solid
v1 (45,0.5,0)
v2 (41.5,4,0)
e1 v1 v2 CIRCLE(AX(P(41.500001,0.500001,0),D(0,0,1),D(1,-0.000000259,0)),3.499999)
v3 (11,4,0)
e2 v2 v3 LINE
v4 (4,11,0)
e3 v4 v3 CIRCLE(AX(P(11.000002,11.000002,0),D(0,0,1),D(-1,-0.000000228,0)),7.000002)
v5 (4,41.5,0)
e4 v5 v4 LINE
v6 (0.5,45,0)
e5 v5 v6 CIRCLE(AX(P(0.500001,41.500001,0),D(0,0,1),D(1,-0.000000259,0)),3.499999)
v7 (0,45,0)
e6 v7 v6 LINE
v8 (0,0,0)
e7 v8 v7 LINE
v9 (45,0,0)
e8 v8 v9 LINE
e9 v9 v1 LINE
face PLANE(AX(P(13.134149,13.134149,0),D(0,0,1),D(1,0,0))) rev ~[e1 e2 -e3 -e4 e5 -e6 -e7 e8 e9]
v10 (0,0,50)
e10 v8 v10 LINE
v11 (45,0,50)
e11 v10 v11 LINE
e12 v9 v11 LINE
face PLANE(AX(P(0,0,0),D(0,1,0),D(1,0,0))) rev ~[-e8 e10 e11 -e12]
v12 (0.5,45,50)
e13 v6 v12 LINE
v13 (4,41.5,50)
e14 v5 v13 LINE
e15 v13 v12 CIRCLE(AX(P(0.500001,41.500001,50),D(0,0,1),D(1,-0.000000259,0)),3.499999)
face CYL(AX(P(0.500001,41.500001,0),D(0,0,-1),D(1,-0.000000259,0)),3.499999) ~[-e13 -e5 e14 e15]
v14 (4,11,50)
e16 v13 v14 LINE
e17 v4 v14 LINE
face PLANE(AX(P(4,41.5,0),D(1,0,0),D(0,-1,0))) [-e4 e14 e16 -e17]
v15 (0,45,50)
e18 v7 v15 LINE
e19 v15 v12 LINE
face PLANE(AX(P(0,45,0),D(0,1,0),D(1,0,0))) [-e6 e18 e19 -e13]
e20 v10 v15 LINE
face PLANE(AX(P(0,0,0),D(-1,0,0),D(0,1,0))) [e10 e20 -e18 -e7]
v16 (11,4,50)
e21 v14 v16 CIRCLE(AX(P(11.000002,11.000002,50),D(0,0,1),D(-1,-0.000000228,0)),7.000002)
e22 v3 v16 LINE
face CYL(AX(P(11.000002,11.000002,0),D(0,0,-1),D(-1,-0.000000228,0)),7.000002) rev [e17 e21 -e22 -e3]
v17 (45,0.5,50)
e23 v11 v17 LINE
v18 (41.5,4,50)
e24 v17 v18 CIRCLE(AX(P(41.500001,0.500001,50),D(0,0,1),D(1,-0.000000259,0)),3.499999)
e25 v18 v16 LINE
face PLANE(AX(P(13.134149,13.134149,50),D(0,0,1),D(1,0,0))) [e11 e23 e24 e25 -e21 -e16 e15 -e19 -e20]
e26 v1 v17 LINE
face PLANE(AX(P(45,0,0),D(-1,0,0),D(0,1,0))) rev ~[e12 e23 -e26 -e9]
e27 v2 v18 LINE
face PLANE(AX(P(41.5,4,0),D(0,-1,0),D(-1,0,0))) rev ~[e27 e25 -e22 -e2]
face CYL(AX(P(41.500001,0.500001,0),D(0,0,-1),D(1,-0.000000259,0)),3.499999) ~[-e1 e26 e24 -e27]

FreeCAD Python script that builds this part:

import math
import FreeCAD as App
import Part
import Sketcher

doc = App.newDocument("Part")
body = doc.addObject("PartDesign::Body", "Body")

sketch1 = doc.addObject("Sketcher::SketchObject", "Sketch")
body.addObject(sketch1)
sketch1.AttachmentSupport = (doc.XY_Plane, [""])
sketch1.MapMode = "FlatFace"
sketch1.addGeometry([
    Part.LineSegment(App.Vector(0, 0, 0), App.Vector(45, 0, 0)),
    Part.LineSegment(App.Vector(45, 0, 0), App.Vector(45, 0.5, 0)),
    Part.ArcOfCircle(Part.Circle(App.Vector(41.500001, 0.500001, 0), App.Vector(0, 0, 1), 3.499999), math.radians(-0.000015), math.radians(90.000015)),
    Part.LineSegment(App.Vector(41.5, 4, 0), App.Vector(11, 4, 0)),
    Part.ArcOfCircle(Part.Circle(App.Vector(11.000002, 11.000002, 0), App.Vector(0, 0, 1), 7.000002), math.radians(-179.999987), math.radians(-90.000013)),
    Part.LineSegment(App.Vector(4, 11, 0), App.Vector(4, 41.5, 0)),
    Part.ArcOfCircle(Part.Circle(App.Vector(0.500001, 41.500001, 0), App.Vector(0, 0, 1), 3.499999), math.radians(-0.000015), math.radians(90.000015)),
    Part.LineSegment(App.Vector(0.5, 45, 0), App.Vector(0, 45, 0)),
    Part.LineSegment(App.Vector(0, 45, 0), App.Vector(0, 0, 0)),
], False)
sketch1.addConstraint([
    Sketcher.Constraint("Coincident", 0, 2, 1, 1),
    Sketcher.Constraint("Tangent", 1, 2, 2, 1),
    Sketcher.Constraint("Tangent", 2, 2, 3, 1),
    Sketcher.Constraint("Tangent", 3, 2, 4, 2),
    Sketcher.Constraint("Tangent", 4, 1, 5, 1),
    Sketcher.Constraint("Tangent", 5, 2, 6, 1),
    Sketcher.Constraint("Tangent", 6, 2, 7, 1),
    Sketcher.Constraint("Coincident", 7, 2, 8, 1),
    Sketcher.Constraint("Coincident", 8, 2, 0, 1),
    Sketcher.Constraint("Horizontal", 0),
    Sketcher.Constraint("Vertical", 1),
    Sketcher.Constraint("Horizontal", 3),
    Sketcher.Constraint("Vertical", 5),
    Sketcher.Constraint("Horizontal", 7),
    Sketcher.Constraint("Vertical", 8),
    Sketcher.Constraint("Coincident", 8, 2, -1, 1),
    Sketcher.Constraint("Equal", 2, 6),
    Sketcher.Constraint("Equal", 7, 1),
    Sketcher.Constraint("Equal", 3, 5),
    Sketcher.Constraint("Radius", 4, 7.000002),
    Sketcher.Constraint("Radius", 2, 3.499999),
    Sketcher.Constraint("DistanceX", 0, 1, 0, 2, 45.0),
    Sketcher.Constraint("DistanceX", 3, 2, 3, 1, 30.5),
])
pad1 = doc.addObject("PartDesign::Pad", "Pad")
body.addObject(pad1)
pad1.Profile = sketch1
pad1.Length = 50

doc.recompute()
